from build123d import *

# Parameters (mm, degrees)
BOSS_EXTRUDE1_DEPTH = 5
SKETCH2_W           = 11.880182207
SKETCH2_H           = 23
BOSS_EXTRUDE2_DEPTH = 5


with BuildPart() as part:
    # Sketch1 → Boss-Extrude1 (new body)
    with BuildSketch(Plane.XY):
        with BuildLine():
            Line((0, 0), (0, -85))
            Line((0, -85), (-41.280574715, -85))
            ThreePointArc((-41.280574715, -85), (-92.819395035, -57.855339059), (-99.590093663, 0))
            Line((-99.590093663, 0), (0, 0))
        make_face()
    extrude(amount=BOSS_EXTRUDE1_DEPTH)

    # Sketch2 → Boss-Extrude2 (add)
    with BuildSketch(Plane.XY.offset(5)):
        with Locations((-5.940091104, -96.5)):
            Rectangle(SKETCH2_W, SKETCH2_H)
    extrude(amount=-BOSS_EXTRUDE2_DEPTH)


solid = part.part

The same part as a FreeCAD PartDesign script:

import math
import FreeCAD as App
import Part
import Sketcher
from FreeCAD import Vector

doc = App.newDocument("Part")
body = doc.addObject("PartDesign::Body", "Body")

# Sketch on XY plane
sketch1 = body.newObject("Sketcher::SketchObject", "Sketch")
sketch1.AttachmentSupport = (doc.getObject("XY_Plane"), [""])
sketch1.MapMode = "FlatFace"
sketch1.addGeometry([
    Part.LineSegment(Vector(0, -85, 0), Vector(0, 0, 0)),
    Part.LineSegment(Vector(0, 0, 0), Vector(-99.590094, 0, 0)),
    Part.ArcOfCircle(Part.Circle(Vector(-41.280575, -22.5, 0), Vector(0, 0, 1), 62.5), math.radians(158.899804), math.radians(270)),
    Part.LineSegment(Vector(-41.280575, -85, 0), Vector(0, -85, 0)),
], False)
sketch1.addConstraint([
    Sketcher.Constraint("Coincident", 0, 2, 1, 1),
    Sketcher.Constraint("Coincident", 1, 2, 2, 1),
    Sketcher.Constraint("Tangent", 2, 2, 3, 1),
    Sketcher.Constraint("Coincident", 3, 2, 0, 1),
    Sketcher.Constraint("Vertical", 0),
    Sketcher.Constraint("Horizontal", 1),
    Sketcher.Constraint("Horizontal", 3),
    Sketcher.Constraint("Coincident", 0, 2, -1, 1),
    Sketcher.Constraint("Radius", 2, 62.5),
    Sketcher.Constraint("DistanceY", 0, 1, 0, 2, 85.0),
    Sketcher.Constraint("DistanceX", 1, 2, 1, 1, 99.590094),
])
pad1 = body.newObject("PartDesign::Pad", "Pad")
pad1.Profile = sketch1
pad1.Length = 5

# Sketch on XY plane
sketch2 = body.newObject("Sketcher::SketchObject", "Sketch001")
sketch2.AttachmentSupport = (doc.getObject("XY_Plane"), [""])
sketch2.MapMode = "FlatFace"
sketch2.AttachmentOffset = App.Placement(Vector(0, 0, 5), App.Rotation())
sketch2.addGeometry([
    Part.LineSegment(Vector(-11.880182, -85, 0), Vector(-11.880182, -108, 0)),
    Part.LineSegment(Vector(-11.880182, -108, 0), Vector(0, -108, 0)),
    Part.LineSegment(Vector(0, -108, 0), Vector(0, -85, 0)),
    Part.LineSegment(Vector(0, -85, 0), Vector(-11.880182, -85, 0)),
], False)
sketch2.addConstraint([
    Sketcher.Constraint("Coincident", 0, 2, 1, 1),
    Sketcher.Constraint("Coincident", 1, 2, 2, 1),
    Sketcher.Constraint("Coincident", 2, 2, 3, 1),
    Sketcher.Constraint("Coincident", 3, 2, 0, 1),
    Sketcher.Constraint("Vertical", 0),
    Sketcher.Constraint("Horizontal", 1),
    Sketcher.Constraint("Vertical", 2),
    Sketcher.Constraint("Horizontal", 3),
    Sketcher.Constraint("PointOnObject", 1, 2, -2),
    Sketcher.Constraint("DistanceY", 0, 2, 0, 1, 23.0),
    Sketcher.Constraint("DistanceY", 0, 2, -1, 1, 108.0),
    Sketcher.Constraint("DistanceX", 1, 1, 1, 2, 11.880182),
])
pad2 = body.newObject("PartDesign::Pad", "Pad001")
pad2.Profile = sketch2
pad2.Length = 5
pad2.Reversed = True

doc.recompute()
